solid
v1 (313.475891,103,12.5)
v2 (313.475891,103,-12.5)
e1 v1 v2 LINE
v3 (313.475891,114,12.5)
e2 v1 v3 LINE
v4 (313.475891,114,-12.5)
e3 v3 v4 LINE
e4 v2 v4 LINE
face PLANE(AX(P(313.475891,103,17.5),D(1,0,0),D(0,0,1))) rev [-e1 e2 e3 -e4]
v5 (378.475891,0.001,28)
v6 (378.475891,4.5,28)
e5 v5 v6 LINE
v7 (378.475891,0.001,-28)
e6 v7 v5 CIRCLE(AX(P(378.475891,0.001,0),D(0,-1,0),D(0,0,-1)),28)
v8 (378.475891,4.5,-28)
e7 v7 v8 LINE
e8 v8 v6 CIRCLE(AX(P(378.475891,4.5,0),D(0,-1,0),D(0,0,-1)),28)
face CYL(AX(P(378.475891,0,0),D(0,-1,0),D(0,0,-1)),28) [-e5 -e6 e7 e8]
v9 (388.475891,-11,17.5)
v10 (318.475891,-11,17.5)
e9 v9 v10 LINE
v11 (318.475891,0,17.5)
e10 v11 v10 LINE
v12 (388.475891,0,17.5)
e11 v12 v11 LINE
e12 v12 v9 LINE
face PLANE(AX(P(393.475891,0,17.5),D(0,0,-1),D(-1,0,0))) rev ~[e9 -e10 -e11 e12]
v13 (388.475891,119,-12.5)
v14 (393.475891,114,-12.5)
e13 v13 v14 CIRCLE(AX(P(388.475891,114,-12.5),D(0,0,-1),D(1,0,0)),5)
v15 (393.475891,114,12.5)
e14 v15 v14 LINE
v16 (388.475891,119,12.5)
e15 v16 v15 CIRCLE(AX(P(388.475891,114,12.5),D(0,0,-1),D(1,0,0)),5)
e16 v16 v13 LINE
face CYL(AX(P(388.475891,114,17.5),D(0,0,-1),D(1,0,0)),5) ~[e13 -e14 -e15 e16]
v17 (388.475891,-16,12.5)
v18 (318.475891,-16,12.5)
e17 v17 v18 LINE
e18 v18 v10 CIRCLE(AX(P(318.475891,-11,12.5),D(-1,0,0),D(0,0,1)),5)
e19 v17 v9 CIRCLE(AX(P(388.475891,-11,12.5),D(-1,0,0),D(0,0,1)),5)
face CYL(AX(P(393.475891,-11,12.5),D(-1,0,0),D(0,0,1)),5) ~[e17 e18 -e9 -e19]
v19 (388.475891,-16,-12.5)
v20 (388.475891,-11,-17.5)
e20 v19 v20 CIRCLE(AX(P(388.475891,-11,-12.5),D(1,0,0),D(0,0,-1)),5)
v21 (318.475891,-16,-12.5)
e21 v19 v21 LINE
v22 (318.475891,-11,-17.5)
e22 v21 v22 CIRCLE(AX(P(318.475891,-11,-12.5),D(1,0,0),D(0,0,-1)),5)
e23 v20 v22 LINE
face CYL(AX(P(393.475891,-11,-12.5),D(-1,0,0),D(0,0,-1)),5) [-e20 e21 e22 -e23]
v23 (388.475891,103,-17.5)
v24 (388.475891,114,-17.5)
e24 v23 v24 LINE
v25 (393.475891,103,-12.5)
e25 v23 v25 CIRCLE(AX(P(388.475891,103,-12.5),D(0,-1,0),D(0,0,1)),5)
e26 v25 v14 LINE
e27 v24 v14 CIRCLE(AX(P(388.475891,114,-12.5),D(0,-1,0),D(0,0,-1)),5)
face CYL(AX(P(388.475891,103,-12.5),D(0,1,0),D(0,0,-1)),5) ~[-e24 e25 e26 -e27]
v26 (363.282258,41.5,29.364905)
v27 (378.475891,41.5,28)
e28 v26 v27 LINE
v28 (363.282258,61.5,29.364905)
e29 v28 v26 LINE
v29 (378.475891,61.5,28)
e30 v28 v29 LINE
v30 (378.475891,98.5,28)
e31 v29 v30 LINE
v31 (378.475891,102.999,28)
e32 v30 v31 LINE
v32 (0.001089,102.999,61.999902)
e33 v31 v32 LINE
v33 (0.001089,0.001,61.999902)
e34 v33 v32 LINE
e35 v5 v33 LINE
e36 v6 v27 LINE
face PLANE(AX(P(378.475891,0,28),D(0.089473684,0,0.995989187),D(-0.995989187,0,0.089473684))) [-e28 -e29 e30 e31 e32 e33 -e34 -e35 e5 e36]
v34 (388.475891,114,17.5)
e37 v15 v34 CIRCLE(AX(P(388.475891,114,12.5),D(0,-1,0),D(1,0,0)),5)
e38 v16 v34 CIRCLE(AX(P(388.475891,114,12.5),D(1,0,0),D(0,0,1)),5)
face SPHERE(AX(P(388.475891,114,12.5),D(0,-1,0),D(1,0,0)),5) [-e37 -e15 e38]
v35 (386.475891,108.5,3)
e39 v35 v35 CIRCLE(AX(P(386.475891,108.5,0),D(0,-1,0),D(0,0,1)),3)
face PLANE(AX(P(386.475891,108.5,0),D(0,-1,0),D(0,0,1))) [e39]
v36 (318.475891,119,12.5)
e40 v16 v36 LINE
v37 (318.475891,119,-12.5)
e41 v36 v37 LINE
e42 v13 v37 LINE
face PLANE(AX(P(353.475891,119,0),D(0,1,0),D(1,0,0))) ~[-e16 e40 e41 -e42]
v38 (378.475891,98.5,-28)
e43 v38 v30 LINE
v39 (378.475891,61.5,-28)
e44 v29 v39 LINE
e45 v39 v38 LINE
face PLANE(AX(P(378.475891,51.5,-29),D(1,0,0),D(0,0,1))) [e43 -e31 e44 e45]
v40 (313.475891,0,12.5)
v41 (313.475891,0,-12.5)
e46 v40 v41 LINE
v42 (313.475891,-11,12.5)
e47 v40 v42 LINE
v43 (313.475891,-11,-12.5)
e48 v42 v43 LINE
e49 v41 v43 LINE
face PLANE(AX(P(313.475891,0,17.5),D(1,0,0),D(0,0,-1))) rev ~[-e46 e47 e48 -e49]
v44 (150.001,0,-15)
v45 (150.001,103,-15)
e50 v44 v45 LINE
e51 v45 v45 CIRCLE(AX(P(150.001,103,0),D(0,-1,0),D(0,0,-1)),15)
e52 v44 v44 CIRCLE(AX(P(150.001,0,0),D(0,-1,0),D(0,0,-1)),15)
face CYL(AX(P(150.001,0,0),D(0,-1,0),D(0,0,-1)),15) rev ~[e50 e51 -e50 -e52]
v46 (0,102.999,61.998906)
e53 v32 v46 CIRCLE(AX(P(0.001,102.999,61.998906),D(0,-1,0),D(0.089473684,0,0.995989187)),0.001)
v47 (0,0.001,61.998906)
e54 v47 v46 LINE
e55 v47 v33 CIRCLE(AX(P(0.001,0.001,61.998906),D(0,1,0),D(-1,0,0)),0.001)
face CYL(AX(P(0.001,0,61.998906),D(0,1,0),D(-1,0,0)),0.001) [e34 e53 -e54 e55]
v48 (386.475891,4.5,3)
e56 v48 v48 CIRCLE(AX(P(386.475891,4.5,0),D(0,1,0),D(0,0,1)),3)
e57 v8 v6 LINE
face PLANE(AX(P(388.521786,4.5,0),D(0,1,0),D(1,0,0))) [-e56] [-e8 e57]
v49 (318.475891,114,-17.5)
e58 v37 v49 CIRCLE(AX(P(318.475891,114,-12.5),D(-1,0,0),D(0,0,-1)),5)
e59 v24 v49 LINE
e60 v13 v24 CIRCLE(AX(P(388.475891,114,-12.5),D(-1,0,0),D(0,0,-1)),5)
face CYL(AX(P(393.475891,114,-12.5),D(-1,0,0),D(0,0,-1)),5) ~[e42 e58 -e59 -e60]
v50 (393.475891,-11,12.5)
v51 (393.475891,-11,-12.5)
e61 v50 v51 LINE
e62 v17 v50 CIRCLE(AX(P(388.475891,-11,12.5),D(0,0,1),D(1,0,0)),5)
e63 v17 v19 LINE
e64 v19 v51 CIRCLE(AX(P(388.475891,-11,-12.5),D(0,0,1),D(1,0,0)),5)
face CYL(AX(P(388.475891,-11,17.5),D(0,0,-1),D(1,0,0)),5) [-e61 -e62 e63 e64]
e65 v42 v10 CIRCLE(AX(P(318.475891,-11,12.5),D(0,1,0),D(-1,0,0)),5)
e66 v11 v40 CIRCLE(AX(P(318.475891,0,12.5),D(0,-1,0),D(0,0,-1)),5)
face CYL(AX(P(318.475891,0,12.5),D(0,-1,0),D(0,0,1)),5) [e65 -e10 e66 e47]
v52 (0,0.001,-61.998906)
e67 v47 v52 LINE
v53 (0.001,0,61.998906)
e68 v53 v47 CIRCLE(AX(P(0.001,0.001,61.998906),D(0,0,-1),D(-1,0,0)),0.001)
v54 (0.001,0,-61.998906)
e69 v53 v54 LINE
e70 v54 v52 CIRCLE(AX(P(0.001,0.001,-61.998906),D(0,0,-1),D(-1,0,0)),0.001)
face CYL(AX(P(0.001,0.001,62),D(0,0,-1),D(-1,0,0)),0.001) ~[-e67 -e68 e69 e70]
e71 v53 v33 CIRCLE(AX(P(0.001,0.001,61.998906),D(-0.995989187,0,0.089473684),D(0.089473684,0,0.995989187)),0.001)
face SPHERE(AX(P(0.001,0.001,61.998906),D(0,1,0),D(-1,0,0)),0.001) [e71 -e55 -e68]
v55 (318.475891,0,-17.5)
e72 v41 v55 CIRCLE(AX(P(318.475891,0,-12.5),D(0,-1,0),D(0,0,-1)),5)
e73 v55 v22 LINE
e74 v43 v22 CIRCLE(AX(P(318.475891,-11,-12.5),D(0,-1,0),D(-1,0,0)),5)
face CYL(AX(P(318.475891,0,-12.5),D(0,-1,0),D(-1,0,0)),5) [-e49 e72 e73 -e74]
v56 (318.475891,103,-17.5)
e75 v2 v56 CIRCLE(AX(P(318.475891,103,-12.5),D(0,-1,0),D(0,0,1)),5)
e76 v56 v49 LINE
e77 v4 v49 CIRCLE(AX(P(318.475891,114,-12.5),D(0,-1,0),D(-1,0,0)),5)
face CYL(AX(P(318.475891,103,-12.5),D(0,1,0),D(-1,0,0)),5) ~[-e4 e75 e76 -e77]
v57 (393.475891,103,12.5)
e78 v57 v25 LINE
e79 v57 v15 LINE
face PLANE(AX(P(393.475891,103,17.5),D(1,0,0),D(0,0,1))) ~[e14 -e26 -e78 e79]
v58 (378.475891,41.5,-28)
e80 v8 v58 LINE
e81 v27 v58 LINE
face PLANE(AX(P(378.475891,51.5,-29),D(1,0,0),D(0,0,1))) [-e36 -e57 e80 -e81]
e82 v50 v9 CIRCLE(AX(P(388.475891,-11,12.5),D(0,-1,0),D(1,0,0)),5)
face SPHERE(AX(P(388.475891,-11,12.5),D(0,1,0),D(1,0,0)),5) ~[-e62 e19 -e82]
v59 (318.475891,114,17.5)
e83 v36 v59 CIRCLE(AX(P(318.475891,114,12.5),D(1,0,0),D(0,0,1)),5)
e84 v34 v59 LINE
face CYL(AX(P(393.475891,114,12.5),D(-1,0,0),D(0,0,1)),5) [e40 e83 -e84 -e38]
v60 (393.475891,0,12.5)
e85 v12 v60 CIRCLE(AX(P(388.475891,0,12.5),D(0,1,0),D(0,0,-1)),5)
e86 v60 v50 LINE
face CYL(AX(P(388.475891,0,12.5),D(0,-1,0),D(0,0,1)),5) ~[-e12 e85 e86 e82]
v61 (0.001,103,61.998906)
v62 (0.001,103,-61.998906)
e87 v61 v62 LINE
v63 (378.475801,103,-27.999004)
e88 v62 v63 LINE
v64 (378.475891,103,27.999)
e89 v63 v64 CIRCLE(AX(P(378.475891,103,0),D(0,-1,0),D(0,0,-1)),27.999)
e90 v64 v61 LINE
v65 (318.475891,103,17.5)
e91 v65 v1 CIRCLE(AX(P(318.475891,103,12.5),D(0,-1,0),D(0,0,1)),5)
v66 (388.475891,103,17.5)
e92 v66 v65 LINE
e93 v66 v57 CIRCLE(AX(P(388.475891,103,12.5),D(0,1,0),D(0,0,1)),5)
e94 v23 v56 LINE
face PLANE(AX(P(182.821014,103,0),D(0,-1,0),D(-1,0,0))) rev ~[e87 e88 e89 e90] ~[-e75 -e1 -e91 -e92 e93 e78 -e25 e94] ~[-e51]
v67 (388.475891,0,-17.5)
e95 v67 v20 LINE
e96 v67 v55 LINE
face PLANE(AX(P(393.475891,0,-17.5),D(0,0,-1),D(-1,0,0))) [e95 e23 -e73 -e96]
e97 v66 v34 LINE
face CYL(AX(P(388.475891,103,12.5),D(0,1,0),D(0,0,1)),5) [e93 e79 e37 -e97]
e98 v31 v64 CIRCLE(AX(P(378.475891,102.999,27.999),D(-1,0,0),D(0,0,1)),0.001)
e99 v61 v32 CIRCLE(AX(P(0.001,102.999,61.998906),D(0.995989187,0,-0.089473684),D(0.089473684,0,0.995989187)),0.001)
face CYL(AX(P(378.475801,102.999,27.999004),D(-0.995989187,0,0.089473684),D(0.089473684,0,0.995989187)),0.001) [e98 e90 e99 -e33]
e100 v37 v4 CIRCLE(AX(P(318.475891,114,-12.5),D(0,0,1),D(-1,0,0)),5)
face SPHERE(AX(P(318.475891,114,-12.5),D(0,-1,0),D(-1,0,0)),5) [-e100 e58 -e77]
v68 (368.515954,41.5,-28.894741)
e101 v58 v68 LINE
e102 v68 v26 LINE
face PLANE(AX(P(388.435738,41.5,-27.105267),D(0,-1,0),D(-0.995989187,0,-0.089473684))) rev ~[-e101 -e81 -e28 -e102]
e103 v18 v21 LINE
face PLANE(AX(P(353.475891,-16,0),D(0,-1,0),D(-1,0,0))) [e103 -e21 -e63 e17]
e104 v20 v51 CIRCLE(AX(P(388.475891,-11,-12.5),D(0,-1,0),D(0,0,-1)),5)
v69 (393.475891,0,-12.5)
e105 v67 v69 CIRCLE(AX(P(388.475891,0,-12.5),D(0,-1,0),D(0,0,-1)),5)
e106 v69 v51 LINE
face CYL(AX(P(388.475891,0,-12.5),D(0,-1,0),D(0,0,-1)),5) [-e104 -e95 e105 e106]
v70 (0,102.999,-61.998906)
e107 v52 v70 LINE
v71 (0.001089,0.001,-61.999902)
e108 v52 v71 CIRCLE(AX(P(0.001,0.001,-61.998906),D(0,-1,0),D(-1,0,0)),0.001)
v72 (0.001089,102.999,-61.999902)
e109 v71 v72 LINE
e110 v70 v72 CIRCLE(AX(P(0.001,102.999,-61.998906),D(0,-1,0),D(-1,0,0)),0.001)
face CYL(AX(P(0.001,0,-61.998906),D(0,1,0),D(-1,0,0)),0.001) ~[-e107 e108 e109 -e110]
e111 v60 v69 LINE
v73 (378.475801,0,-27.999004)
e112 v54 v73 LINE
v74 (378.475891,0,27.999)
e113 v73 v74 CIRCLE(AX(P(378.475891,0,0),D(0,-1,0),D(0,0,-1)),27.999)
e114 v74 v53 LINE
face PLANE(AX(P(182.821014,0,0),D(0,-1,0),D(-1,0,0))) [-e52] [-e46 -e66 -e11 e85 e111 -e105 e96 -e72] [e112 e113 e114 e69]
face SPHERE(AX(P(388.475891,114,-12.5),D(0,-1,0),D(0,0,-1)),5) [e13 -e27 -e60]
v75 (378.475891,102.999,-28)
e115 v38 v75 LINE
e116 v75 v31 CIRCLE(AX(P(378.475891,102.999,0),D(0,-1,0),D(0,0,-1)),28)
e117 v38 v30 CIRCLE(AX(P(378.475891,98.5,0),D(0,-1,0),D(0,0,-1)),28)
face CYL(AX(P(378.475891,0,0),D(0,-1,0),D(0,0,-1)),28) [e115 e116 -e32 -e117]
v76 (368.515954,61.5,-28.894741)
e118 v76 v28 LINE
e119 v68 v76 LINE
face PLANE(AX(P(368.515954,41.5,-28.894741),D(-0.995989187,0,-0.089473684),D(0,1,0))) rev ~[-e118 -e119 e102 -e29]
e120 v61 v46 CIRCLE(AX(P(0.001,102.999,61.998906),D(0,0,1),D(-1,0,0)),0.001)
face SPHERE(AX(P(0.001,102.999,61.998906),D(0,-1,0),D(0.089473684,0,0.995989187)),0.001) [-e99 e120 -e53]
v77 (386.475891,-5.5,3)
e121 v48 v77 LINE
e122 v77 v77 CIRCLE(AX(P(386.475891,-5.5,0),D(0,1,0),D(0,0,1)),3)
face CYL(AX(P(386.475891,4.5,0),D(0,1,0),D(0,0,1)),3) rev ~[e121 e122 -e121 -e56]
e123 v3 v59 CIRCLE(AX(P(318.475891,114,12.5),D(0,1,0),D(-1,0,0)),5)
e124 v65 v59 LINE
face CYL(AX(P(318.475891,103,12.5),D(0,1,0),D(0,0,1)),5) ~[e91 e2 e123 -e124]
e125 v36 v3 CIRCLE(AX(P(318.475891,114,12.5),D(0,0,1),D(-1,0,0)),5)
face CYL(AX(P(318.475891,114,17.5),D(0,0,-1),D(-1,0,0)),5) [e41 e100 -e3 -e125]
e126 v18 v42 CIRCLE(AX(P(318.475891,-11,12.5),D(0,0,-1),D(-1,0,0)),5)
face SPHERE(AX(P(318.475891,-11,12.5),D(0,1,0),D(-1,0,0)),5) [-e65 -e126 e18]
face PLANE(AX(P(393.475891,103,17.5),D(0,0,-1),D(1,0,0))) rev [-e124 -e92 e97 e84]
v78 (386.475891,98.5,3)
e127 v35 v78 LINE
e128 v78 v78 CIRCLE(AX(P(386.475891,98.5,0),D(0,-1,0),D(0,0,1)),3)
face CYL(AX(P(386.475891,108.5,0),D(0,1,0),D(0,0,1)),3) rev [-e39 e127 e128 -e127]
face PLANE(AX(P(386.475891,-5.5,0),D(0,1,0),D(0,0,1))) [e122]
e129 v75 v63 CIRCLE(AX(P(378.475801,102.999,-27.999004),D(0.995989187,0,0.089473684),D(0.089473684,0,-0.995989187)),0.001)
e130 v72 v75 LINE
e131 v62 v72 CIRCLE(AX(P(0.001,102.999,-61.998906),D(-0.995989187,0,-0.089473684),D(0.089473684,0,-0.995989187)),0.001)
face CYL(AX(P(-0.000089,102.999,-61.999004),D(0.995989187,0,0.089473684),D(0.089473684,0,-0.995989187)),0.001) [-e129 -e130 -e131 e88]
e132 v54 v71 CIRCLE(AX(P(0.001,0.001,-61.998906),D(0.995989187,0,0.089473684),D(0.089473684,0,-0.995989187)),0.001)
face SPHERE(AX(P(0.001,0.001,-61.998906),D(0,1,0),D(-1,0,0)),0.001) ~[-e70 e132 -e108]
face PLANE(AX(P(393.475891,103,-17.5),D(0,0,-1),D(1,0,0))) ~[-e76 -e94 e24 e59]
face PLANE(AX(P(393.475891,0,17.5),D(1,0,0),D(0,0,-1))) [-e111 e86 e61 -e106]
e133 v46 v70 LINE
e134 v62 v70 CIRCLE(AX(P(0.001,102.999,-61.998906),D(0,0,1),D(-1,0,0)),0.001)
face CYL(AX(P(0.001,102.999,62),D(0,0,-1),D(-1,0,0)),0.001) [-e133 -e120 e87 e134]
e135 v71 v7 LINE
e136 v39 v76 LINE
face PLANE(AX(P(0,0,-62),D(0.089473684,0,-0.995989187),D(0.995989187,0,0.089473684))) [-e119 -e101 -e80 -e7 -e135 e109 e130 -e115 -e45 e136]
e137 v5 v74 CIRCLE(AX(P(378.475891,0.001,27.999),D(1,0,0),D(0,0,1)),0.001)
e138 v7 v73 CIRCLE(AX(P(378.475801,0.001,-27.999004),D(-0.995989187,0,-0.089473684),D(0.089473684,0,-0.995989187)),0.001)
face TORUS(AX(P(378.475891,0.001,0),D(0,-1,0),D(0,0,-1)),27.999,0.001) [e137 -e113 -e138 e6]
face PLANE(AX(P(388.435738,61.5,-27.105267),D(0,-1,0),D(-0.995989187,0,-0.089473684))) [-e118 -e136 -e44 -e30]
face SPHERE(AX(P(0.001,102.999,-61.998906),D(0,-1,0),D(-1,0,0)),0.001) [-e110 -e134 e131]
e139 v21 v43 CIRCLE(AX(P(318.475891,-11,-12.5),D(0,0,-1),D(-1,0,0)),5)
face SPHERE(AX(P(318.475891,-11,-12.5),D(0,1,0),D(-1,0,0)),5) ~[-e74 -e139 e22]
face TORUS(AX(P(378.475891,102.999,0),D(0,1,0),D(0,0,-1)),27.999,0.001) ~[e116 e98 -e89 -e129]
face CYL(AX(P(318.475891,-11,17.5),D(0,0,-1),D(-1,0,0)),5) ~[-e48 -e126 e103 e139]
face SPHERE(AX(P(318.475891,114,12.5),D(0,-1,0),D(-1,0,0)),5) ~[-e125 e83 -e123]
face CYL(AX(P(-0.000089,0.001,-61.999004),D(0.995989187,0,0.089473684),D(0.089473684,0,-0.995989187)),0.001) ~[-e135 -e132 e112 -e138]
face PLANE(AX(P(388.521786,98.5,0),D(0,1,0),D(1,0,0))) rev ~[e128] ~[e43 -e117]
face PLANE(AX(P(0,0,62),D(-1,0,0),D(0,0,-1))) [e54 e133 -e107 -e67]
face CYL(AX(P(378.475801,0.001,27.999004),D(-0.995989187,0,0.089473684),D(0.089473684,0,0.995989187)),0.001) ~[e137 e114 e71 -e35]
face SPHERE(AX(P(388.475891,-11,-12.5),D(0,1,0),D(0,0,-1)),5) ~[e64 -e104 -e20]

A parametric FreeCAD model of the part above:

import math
import FreeCAD as App
import Part
import Sketcher

V = App.Vector
Q = App.Units.Quantity


def edges_at(feature, points):
    """Names of the edges that pass closest to the given points."""
    edges = feature.Shape.Edges
    near = lambda p: min(range(len(edges)), key=lambda i: edges[i].distToShape(Part.Vertex(*p))[0])
    return sorted({f"Edge{near(p) + 1}" for p in points})

doc = App.newDocument("Part")
body = doc.addObject("PartDesign::Body", "Body")

sketch1 = body.newObject("Sketcher::SketchObject", "Sketch")
sketch1.AttachmentSupport = (doc.getObject("XZ_Plane"), [""])
sketch1.MapMode = "FlatFace"
sketch1.addGeometry(Part.LineSegment(V(0, -62, 0), V(0, 62, 0)), False)
sketch1.addGeometry(Part.LineSegment(V(0, 62, 0), V(378, 28, 0)), False)
sketch1.addGeometry(Part.ArcOfCircle(Part.Circle(V(378, 0, 0), V(0, 0, 1), 28), math.radians(-90), math.radians(90)), False)
sketch1.addGeometry(Part.LineSegment(V(378, -28, 0), V(0, -62, 0)), False)
sketch1.addConstraint(Sketcher.Constraint("Coincident", 0, 2, 1, 1))
sketch1.addConstraint(Sketcher.Constraint("Coincident", 1, 2, 2, 2))
sketch1.addConstraint(Sketcher.Constraint("Coincident", 2, 1, 3, 1))
sketch1.addConstraint(Sketcher.Constraint("Coincident", 3, 2, 0, 1))
sketch1.addConstraint(Sketcher.Constraint("Vertical", 0))
sketch1.addConstraint(Sketcher.Constraint("Symmetric", 0, 2, 3, 2, -1, 1))
sketch1.addConstraint(Sketcher.Constraint("Symmetric", 1, 2, 2, 1, -1))
sketch1.addConstraint(Sketcher.Constraint("Vertical", 2, 3, 1, 2))
sketch1.addConstraint(Sketcher.Constraint("Radius", 2, Q("28 mm")))
sketch1.addConstraint(Sketcher.Constraint("DistanceY", 0, 1, 0, 2, Q("124 mm")))
sketch1.addConstraint(Sketcher.Constraint("Distance", 1, Q("380 mm")))
pad1 = body.newObject("PartDesign::Pad", "Pad")
pad1.Profile = sketch1
pad1.Length = 103
pad1.Reversed = True
doc.recompute()

fillet = body.newObject("PartDesign::Fillet", "Fillet")
fillet.Base = (pad1, ["Edge1"])
fillet.UseAllEdges = True
fillet.Radius = 0.001

sketch2 = body.newObject("Sketcher::SketchObject", "Sketch001")
sketch2.AttachmentSupport = (doc.getObject("XZ_Plane"), [""])
sketch2.MapMode = "FlatFace"
sketch2.addGeometry(Part.LineSegment(V(393, -18, 0), V(393, 18, 0)), False)
sketch2.addGeometry(Part.LineSegment(V(393, 18, 0), V(313, 18, 0)), False)
sketch2.addGeometry(Part.LineSegment(V(313, 18, 0), V(313, -18, 0)), False)
sketch2.addGeometry(Part.LineSegment(V(313, -18, 0), V(393, -18, 0)), False)
sketch2.addConstraint(Sketcher.Constraint("Coincident", 0, 2, 1, 1))
sketch2.addConstraint(Sketcher.Constraint("Coincident", 1, 2, 2, 1))
sketch2.addConstraint(Sketcher.Constraint("Coincident", 2, 2, 3, 1))
sketch2.addConstraint(Sketcher.Constraint("Coincident", 3, 2, 0, 1))
sketch2.addConstraint(Sketcher.Constraint("Vertical", 0))
sketch2.addConstraint(Sketcher.Constraint("Horizontal", 1))
sketch2.addConstraint(Sketcher.Constraint("Vertical", 2))
sketch2.addConstraint(Sketcher.Constraint("Horizontal", 3))
sketch2.addConstraint(Sketcher.Constraint("DistanceX", 1, 2, 1, 1, Q("80 mm")))
sketch2.addConstraint(Sketcher.Constraint("DistanceY", 0, 1, 0, 2, Q("35 mm")))
sketch2.addConstraint(Sketcher.Constraint("DistanceY", -1, 1, 0, 2, Q("17.5 mm")))
sketch2.addConstraint(Sketcher.Constraint("DistanceX", -1, 1, 0, 2, Q("393.475891 mm")))
pad2 = body.newObject("PartDesign::Pad", "Pad001")
pad2.Profile = sketch2
pad2.Length = 16
doc.recompute()

fillet2 = body.newObject("PartDesign::Fillet", "Fillet001")
fillet2.Base = (pad2, edges_at(pad2, [
    (313.476, -8, 17.5),
    (313.476, -8, -17.5),
    (393.476, -8, -17.5),
    (393.476, -8, 17.5),
    (313.476, -16, 0),
    (353.476, -16, -17.5),
    (393.476, -16, 0),
    (353.476, -16, 17.5),
]))
fillet2.Radius = 5

sketch3 = body.newObject("Sketcher::SketchObject", "Sketch002")
sketch3.AttachmentSupport = (doc.getObject("XZ_Plane"), [""])
sketch3.MapMode = "FlatFace"
sketch3.addGeometry(Part.Circle(V(150, 0, 0), V(0, 0, 1), 15), False)
sketch3.addConstraint(Sketcher.Constraint("PointOnObject", 0, 3, -1))
sketch3.addConstraint(Sketcher.Constraint("Diameter", 0, Q("30 mm")))
sketch3.addConstraint(Sketcher.Constraint("DistanceX", -1, 1, 0, 3, Q("150.001 mm")))
pocket1 = body.newObject("PartDesign::Pocket", "Pocket")
pocket1.Profile = sketch3
pocket1.Type = "ThroughAll"

sketch4 = body.newObject("Sketcher::SketchObject", "Sketch003")
sketch4.AttachmentSupport = (doc.getObject("XZ_Plane"), [""])
sketch4.MapMode = "FlatFace"
sketch4.AttachmentOffset = App.Placement(V(0, 0, -51.5), App.Rotation())
sketch4.addGeometry(Part.LineSegment(V(378, 29, 0), V(378, -29, 0)), False)
sketch4.addGeometry(Part.ArcOfCircle(Part.Circle(V(378, 0, 0), V(0, 0, 1), 29), math.radians(-90), math.radians(90)), False)
sketch4.addConstraint(Sketcher.Constraint("Coincident", 0, 1, 1, 2))
sketch4.addConstraint(Sketcher.Constraint("Coincident", 1, 1, 0, 2))
sketch4.addConstraint(Sketcher.Constraint("Vertical", 0))
sketch4.addConstraint(Sketcher.Constraint("PointOnObject", 1, 3, -1))
sketch4.addConstraint(Sketcher.Constraint("Vertical", 1, 3, 0, 1))
sketch4.addConstraint(Sketcher.Constraint("Radius", 1, Q("29 mm")))
sketch4.addConstraint(Sketcher.Constraint("DistanceX", -1, 1, 1, 3, Q("378.475891 mm")))
pocket2 = body.newObject("PartDesign::Pocket", "Pocket001")
pocket2.Profile = sketch4
pocket2.Length = 94
pocket2.Midplane = True

sketch5 = body.newObject("Sketcher::SketchObject", "Sketch004")
sketch5.Placement = App.Placement(V(5.525119, 0, -61.503657), App.Rotation(V(-0.995989187, 0, -0.089473684), V(0, 1.000000001, 0), V(0.089473684, 0, -0.995989187), "ZXY"))
sketch5.addGeometry(Part.LineSegment(V(-384, 62, 0), V(-384, 42, 0)), False)
sketch5.addGeometry(Part.LineSegment(V(-384, 42, 0), V(-364, 42, 0)), False)
sketch5.addGeometry(Part.LineSegment(V(-364, 42, 0), V(-364, 62, 0)), False)
sketch5.addGeometry(Part.LineSegment(V(-364, 62, 0), V(-384, 62, 0)), False)
sketch5.addConstraint(Sketcher.Constraint("Coincident", 0, 2, 1, 1))
sketch5.addConstraint(Sketcher.Constraint("Coincident", 1, 2, 2, 1))
sketch5.addConstraint(Sketcher.Constraint("Coincident", 2, 2, 3, 1))
sketch5.addConstraint(Sketcher.Constraint("Coincident", 3, 2, 0, 1))
sketch5.addConstraint(Sketcher.Constraint("Vertical", 0))
sketch5.addConstraint(Sketcher.Constraint("Horizontal", 1))
sketch5.addConstraint(Sketcher.Constraint("Vertical", 2))
sketch5.addConstraint(Sketcher.Constraint("Horizontal", 3))
sketch5.addConstraint(Sketcher.Constraint("Equal", 3, 0))
sketch5.addConstraint(Sketcher.Constraint("DistanceX", 1, 1, 1, 2, Q("20 mm")))
sketch5.addConstraint(Sketcher.Constraint("DistanceY", -1, 1, 0, 2, Q("41.5 mm")))
sketch5.addConstraint(Sketcher.Constraint("DistanceX", 0, 2, -1, 1, Q("384.452587 mm")))
pocket3 = body.newObject("PartDesign::Pocket", "Pocket002")
pocket3.Profile = sketch5
pocket3.Length = 94
doc.recompute()

datumplane = body.newObject("PartDesign::Plane", "DatumPlane")
datumplane.AttachmentSupport = (doc.getObject("XZ_Plane"), [""])
datumplane.MapMode = "FlatFace"
datumplane.AttachmentOffset = App.Placement(V(0, 0, -51.5), App.Rotation())
mirrored = body.newObject("PartDesign::Mirrored", "Mirrored")
mirrored.Originals = [pad2]
mirrored.MirrorPlane = (datumplane, [""])
body.Tip = mirrored
doc.recompute()

fillet3 = body.newObject("PartDesign::Fillet", "Fillet002")
fillet3.Base = (mirrored, edges_at(mirrored, [
    (313.476, 111, 17.5),
    (313.476, 111, -17.5),
    (393.476, 111, -17.5),
    (393.476, 111, 17.5),
    (313.476, 119, 0),
    (353.476, 119, -17.5),
    (393.476, 119, 0),
    (353.476, 119, 17.5),
]))
fillet3.Radius = 5

sketch6 = body.newObject("Sketcher::SketchObject", "Sketch005")
sketch6.AttachmentSupport = (doc.getObject("XZ_Plane"), [""])
sketch6.MapMode = "FlatFace"
sketch6.AttachmentOffset = App.Placement(V(0, 0, -4.5), App.Rotation())
sketch6.addGeometry(Part.Circle(V(386.5, 0, 0), V(0, 0, 1), 3), False)
sketch6.addConstraint(Sketcher.Constraint("PointOnObject", 0, 3, -1))
sketch6.addConstraint(Sketcher.Constraint("Diameter", 0, Q("6 mm")))
sketch6.addConstraint(Sketcher.Constraint("DistanceX", -1, 1, 0, 3, Q("386.475891 mm")))
pocket4 = body.newObject("PartDesign::Pocket", "Pocket003")
pocket4.Profile = sketch6
pocket4.Length = 10
pocket4.Reversed = True

sketch7 = body.newObject("Sketcher::SketchObject", "Sketch006")
sketch7.AttachmentSupport = (doc.getObject("XZ_Plane"), [""])
sketch7.MapMode = "FlatFace"
sketch7.AttachmentOffset = App.Placement(V(0, 0, -108.5), App.Rotation())
sketch7.addGeometry(Part.Circle(V(386.5, 0, 0), V(0, 0, 1), 3), False)
sketch7.addConstraint(Sketcher.Constraint("PointOnObject", 0, 3, -1))
sketch7.addConstraint(Sketcher.Constraint("Diameter", 0, Q("6 mm")))
sketch7.addConstraint(Sketcher.Constraint("DistanceX", -1, 1, 0, 3, Q("386.475891 mm")))
pocket5 = body.newObject("PartDesign::Pocket", "Pocket004")
pocket5.Profile = sketch7
pocket5.Length = 10
pocket5.Reversed = True

doc.recompute()
